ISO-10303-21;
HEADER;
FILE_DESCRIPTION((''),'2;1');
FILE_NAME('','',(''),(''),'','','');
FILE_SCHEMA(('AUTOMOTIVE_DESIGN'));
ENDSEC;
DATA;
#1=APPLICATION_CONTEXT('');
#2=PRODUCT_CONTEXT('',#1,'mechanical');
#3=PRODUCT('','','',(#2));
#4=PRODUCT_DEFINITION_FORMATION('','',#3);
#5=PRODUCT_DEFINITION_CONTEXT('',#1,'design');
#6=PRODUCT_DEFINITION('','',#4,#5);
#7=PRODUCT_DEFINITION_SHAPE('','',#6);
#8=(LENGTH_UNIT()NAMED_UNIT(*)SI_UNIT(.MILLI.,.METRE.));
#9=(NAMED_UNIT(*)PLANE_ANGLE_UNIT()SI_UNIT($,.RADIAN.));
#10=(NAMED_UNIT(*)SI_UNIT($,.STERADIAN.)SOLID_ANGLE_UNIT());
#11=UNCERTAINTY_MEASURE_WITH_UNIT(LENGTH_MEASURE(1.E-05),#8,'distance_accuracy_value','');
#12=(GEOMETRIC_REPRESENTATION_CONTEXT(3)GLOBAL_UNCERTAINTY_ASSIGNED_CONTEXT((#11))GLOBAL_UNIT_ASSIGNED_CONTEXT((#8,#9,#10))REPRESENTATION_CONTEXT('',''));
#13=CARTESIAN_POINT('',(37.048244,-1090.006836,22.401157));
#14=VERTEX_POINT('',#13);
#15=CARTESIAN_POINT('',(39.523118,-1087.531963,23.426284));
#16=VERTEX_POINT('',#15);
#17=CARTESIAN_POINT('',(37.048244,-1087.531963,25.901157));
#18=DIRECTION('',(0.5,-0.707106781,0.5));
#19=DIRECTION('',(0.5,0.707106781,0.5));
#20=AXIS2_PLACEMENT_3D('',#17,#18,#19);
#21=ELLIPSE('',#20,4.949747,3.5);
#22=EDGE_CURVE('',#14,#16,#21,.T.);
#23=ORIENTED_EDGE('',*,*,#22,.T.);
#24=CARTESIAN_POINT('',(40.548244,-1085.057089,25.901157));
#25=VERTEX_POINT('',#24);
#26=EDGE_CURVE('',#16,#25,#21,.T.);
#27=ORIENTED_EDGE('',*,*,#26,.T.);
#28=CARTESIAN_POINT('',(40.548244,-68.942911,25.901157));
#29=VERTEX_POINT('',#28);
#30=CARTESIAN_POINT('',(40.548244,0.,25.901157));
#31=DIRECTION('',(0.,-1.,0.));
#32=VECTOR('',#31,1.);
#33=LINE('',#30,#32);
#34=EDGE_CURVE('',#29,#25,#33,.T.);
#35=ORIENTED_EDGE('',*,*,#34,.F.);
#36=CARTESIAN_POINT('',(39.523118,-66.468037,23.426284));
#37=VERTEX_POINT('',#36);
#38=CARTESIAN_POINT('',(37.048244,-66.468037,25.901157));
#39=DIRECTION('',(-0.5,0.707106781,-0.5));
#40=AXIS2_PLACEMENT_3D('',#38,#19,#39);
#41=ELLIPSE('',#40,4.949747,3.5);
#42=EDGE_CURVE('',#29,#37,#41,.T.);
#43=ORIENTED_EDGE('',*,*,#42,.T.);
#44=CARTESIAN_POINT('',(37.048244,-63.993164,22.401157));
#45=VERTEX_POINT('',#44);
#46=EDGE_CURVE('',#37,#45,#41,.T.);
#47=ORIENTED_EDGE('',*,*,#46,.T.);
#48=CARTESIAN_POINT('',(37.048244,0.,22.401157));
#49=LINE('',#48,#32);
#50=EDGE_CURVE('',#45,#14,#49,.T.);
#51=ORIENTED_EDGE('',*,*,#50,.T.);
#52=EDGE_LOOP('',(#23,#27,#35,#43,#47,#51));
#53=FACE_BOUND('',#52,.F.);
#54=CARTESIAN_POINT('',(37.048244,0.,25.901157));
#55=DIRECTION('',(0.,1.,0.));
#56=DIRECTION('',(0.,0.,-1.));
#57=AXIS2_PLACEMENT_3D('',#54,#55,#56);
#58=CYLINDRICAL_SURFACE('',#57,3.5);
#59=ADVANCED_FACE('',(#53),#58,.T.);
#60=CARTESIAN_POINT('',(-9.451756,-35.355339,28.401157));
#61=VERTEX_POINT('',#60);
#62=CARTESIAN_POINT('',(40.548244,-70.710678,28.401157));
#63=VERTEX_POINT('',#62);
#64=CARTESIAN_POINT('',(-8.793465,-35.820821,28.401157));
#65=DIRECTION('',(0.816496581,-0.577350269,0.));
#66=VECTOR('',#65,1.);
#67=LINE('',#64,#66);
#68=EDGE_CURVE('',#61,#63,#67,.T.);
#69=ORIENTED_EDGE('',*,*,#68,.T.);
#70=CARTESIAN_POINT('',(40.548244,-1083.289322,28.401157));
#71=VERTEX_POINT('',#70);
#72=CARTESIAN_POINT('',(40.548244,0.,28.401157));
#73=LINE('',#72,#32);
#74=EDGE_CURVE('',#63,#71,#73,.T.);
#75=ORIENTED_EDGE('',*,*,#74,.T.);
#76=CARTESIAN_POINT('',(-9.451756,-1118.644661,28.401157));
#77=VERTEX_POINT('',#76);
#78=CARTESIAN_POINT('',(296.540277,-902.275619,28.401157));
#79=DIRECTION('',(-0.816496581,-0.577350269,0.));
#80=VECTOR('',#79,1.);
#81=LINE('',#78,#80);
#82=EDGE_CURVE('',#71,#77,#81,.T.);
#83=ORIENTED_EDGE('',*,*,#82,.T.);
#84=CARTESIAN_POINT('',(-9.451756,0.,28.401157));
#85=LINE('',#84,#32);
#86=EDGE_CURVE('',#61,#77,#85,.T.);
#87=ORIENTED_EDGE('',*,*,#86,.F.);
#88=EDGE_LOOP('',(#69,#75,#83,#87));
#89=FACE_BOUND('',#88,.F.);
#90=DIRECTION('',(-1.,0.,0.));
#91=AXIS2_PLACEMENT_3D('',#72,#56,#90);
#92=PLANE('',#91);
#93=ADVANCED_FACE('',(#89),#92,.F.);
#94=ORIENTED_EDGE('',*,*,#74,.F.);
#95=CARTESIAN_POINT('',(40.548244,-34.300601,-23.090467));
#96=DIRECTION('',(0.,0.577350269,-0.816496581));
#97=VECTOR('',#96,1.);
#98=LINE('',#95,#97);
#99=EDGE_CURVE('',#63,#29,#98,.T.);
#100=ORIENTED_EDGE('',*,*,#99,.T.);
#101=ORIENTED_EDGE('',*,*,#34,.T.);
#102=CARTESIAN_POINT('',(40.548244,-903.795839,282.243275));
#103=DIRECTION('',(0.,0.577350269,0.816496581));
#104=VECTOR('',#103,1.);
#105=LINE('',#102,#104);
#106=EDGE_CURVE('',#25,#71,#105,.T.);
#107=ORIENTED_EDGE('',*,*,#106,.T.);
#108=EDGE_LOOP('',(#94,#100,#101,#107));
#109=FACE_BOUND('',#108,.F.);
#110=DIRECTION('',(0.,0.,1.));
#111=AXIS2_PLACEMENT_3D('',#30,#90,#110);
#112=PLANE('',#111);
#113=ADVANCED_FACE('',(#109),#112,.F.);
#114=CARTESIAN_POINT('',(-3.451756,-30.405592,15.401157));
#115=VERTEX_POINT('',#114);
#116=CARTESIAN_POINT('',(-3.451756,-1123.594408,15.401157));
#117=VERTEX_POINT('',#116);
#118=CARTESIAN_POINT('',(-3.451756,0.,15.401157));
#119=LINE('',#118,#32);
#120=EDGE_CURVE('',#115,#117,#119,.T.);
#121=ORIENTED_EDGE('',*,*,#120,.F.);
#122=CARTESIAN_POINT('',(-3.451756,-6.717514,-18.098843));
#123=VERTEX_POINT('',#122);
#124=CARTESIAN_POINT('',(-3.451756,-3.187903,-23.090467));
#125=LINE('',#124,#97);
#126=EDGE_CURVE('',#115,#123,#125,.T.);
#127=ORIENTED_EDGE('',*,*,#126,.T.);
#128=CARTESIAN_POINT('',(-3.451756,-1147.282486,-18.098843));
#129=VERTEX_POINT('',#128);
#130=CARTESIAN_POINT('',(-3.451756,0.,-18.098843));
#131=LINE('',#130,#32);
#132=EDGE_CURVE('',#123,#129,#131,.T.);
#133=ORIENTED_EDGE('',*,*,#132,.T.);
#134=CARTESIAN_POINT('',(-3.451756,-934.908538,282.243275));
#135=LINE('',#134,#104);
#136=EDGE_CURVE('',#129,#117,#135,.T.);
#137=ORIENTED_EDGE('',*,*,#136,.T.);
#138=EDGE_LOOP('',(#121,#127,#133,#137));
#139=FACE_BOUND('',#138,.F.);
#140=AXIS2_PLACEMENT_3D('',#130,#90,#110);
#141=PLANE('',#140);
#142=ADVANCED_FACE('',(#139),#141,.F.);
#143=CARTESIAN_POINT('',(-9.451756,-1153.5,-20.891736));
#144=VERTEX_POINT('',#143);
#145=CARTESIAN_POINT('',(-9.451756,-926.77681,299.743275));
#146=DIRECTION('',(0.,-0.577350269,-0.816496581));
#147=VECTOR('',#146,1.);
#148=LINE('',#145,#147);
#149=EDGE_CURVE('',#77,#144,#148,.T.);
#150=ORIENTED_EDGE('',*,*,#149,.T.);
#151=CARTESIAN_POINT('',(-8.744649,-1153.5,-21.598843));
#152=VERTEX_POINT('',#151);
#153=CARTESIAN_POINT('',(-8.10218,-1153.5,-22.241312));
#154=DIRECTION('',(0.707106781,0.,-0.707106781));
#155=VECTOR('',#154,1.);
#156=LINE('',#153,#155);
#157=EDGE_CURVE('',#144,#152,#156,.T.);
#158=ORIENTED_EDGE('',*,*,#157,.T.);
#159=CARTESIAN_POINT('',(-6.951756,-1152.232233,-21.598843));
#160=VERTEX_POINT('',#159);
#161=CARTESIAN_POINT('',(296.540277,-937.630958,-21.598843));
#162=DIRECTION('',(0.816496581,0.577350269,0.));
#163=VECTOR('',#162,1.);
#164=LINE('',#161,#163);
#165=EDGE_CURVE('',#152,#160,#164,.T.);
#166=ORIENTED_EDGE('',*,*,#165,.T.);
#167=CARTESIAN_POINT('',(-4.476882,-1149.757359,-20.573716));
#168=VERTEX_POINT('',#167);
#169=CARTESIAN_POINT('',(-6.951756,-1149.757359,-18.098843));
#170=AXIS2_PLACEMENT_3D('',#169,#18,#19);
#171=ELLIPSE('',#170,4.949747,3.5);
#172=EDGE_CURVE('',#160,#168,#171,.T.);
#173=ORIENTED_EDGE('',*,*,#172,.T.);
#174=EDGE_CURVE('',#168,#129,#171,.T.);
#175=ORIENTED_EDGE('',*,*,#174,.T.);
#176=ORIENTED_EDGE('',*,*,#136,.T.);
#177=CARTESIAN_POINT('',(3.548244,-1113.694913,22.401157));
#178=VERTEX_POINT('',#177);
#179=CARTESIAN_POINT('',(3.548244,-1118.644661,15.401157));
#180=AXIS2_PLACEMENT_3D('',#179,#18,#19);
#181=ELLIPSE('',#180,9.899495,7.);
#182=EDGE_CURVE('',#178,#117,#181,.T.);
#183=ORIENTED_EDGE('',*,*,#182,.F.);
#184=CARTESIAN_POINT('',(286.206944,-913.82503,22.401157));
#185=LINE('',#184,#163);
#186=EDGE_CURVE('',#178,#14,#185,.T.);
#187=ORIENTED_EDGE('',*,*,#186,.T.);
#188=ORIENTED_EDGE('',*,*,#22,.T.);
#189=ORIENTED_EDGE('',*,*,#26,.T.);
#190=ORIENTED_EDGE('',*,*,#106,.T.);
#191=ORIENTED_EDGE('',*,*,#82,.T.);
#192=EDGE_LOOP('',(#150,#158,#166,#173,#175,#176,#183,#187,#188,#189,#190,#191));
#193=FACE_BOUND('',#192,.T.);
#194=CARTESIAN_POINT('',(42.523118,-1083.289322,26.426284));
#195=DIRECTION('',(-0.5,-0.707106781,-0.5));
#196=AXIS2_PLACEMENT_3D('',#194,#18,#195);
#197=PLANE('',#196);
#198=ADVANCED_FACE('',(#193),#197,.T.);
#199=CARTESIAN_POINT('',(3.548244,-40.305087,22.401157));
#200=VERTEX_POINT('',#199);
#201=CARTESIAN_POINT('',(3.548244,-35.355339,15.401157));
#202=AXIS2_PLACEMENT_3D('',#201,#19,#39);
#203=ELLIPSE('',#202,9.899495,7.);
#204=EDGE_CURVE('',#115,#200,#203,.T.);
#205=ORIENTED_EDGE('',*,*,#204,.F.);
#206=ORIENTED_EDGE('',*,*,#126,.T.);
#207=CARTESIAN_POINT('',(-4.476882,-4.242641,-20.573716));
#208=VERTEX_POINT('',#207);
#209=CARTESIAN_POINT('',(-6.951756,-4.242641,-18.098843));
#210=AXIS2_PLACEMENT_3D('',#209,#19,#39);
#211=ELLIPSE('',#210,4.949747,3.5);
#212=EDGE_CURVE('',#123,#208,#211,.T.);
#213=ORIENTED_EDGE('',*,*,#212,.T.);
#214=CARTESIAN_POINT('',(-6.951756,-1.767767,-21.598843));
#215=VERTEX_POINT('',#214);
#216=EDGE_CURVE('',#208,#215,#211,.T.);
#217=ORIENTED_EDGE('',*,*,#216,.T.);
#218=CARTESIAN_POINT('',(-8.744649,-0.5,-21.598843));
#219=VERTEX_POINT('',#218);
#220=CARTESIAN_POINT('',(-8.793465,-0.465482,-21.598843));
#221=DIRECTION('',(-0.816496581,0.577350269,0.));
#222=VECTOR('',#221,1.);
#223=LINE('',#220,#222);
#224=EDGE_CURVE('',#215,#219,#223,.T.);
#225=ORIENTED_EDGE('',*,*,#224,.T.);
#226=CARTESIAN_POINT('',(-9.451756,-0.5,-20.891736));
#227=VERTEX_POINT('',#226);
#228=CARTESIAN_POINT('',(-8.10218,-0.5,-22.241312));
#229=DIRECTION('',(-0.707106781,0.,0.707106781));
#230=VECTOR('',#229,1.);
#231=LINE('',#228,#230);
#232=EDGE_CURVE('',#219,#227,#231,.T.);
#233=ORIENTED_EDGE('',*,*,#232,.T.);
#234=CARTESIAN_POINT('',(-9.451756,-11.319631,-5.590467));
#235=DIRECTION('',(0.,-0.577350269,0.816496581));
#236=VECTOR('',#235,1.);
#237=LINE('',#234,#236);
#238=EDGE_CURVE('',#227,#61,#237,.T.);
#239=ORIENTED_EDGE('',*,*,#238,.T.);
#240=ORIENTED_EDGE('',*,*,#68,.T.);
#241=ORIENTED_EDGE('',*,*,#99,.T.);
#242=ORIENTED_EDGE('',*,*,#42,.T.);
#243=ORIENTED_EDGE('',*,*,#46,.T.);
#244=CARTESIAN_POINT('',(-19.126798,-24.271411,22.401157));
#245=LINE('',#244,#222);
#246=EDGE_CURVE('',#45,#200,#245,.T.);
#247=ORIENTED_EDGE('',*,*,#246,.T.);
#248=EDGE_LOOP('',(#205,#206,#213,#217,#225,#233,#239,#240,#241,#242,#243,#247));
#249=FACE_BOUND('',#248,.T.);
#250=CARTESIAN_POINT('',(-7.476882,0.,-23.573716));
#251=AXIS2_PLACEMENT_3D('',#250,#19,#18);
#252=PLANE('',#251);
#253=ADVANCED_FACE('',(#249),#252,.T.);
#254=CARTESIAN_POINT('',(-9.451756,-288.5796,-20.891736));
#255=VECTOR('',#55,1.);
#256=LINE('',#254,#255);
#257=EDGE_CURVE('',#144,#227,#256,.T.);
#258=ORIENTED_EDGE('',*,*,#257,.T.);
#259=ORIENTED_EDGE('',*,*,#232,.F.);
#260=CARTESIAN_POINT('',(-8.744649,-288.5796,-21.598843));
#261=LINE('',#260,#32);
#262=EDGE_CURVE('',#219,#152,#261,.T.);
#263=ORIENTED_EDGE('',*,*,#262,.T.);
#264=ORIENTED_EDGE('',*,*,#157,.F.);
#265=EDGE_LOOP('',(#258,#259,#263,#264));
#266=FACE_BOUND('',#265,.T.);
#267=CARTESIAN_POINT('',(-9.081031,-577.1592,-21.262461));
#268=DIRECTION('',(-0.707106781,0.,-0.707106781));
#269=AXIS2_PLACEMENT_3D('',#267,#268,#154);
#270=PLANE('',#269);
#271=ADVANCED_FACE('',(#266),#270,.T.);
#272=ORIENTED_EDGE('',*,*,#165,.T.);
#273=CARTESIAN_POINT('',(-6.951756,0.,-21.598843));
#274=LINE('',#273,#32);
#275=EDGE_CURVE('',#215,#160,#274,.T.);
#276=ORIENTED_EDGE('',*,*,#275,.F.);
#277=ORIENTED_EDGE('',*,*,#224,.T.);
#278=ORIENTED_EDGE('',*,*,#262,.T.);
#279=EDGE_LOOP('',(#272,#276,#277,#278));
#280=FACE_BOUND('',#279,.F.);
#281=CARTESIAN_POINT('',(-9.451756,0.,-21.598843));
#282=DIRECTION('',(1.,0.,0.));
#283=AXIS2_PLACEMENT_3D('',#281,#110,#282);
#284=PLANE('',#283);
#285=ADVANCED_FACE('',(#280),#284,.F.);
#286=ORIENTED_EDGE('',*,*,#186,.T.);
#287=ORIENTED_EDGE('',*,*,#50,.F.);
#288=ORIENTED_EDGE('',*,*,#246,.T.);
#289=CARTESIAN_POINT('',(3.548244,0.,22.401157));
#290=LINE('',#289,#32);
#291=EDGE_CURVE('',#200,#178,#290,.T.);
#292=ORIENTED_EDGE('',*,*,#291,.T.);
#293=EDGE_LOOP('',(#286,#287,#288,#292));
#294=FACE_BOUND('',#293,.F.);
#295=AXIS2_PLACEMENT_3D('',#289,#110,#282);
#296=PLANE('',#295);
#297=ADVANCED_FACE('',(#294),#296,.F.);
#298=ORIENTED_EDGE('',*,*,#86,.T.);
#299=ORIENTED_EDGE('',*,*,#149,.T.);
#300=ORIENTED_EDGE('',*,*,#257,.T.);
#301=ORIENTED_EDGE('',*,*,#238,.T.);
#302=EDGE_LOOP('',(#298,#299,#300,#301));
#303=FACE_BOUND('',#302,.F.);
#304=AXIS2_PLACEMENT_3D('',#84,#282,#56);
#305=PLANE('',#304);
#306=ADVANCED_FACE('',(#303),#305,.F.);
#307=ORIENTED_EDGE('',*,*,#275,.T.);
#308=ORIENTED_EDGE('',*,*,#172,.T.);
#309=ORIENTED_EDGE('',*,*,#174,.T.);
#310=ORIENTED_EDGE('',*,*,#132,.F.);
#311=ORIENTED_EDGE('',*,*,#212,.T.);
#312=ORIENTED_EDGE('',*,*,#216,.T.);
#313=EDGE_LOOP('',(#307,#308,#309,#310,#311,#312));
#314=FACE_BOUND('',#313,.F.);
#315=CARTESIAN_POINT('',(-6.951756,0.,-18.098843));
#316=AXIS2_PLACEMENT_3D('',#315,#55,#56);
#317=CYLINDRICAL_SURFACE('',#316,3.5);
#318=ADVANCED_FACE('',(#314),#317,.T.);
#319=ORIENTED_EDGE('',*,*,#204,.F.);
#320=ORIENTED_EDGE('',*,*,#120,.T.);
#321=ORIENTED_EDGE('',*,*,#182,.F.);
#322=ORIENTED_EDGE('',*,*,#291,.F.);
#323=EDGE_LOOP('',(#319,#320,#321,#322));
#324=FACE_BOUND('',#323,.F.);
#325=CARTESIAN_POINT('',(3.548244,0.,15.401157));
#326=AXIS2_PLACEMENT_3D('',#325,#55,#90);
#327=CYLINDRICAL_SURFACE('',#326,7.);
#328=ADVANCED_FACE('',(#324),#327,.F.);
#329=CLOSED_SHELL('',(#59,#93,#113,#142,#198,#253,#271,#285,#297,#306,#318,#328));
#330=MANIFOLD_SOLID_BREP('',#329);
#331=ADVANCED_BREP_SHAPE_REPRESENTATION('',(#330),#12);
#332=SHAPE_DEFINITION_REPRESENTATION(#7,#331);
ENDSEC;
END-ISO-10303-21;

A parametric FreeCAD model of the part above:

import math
import FreeCAD as App
import Part
import Sketcher

V = App.Vector


def add_polygon(sketch, points):
    """Adds a closed chain of lines whose ends are joined by coincident constraints."""
    first, n = sketch.GeometryCount, len(points)
    for a, b in zip(points, points[1:] + points[:1]):
        sketch.addGeometry(Part.LineSegment(App.Vector(*a, 0), App.Vector(*b, 0)), False)
    for i in range(n):
        sketch.addConstraint(Sketcher.Constraint("Coincident", first + i, 2, first + (i + 1) % n, 1))

doc = App.newDocument("Part")
body = doc.addObject("PartDesign::Body", "Body")

# Sketch on XZ plane
sketch1 = doc.addObject("Sketcher::SketchObject", "Sketch")
body.addObject(sketch1)
sketch1.AttachmentSupport = (doc.XZ_Plane, [""])
sketch1.MapMode = "FlatFace"
sketch1.addGeometry(Part.LineSegment(V(-9.451756, 28.401157, 0), V(-9.451756, -21.598843, 0)), False)
sketch1.addGeometry(Part.LineSegment(V(-9.451756, -21.598843, 0), V(-6.951756, -21.598843, 0)), False)
sketch1.addGeometry(Part.ArcOfCircle(Part.Circle(V(-6.951756, -18.098843, 0), V(0, 0, 1), 3.5), math.radians(-90), math.radians(0)), False)
sketch1.addGeometry(Part.LineSegment(V(-3.451756, -18.098843, 0), V(-3.451756, 15.401157, 0)), False)
sketch1.addGeometry(Part.ArcOfCircle(Part.Circle(V(3.548244, 15.401157, 0), V(0, 0, 1), 7), math.radians(90), math.radians(180)), False)
sketch1.addGeometry(Part.LineSegment(V(3.548244, 22.401157, 0), V(37.048244, 22.401157, 0)), False)
sketch1.addGeometry(Part.ArcOfCircle(Part.Circle(V(37.048244, 25.901157, 0), V(0, 0, 1), 3.5), math.radians(-90), math.radians(0)), False)
sketch1.addGeometry(Part.LineSegment(V(40.548244, 25.901157, 0), V(40.548244, 28.401157, 0)), False)
sketch1.addGeometry(Part.LineSegment(V(40.548244, 28.401157, 0), V(-9.451756, 28.401157, 0)), False)
sketch1.addConstraint(Sketcher.Constraint("Coincident", 0, 2, 1, 1))
sketch1.addConstraint(Sketcher.Constraint("Tangent", 1, 2, 2, 1))
sketch1.addConstraint(Sketcher.Constraint("Tangent", 2, 2, 3, 1))
sketch1.addConstraint(Sketcher.Constraint("Tangent", 3, 2, 4, 2))
sketch1.addConstraint(Sketcher.Constraint("Tangent", 4, 1, 5, 1))
sketch1.addConstraint(Sketcher.Constraint("Tangent", 5, 2, 6, 1))
sketch1.addConstraint(Sketcher.Constraint("Tangent", 6, 2, 7, 1))
sketch1.addConstraint(Sketcher.Constraint("Coincident", 7, 2, 8, 1))
sketch1.addConstraint(Sketcher.Constraint("Coincident", 8, 2, 0, 1))
sketch1.addConstraint(Sketcher.Constraint("Vertical", 0))
sketch1.addConstraint(Sketcher.Constraint("Horizontal", 1))
sketch1.addConstraint(Sketcher.Constraint("Vertical", 3))
sketch1.addConstraint(Sketcher.Constraint("Horizontal", 5))
sketch1.addConstraint(Sketcher.Constraint("Vertical", 7))
sketch1.addConstraint(Sketcher.Constraint("Horizontal", 8))
sketch1.addConstraint(Sketcher.Constraint("Equal", 2, 6))
sketch1.addConstraint(Sketcher.Constraint("Equal", 8, 0))
sketch1.addConstraint(Sketcher.Constraint("Equal", 5, 3))
sketch1.addConstraint(Sketcher.Constraint("Radius", 4, 7.0))
sketch1.addConstraint(Sketcher.Constraint("Radius", 2, 3.5))
sketch1.addConstraint(Sketcher.Constraint("DistanceX", 8, 2, 8, 1, 50.0))
sketch1.addConstraint(Sketcher.Constraint("DistanceX", 1, 1, 1, 2, 2.5))
sketch1.addConstraint(Sketcher.Constraint("DistanceX", 2, 3, -1, 1, 6.951756))
sketch1.addConstraint(Sketcher.Constraint("DistanceY", 2, 3, -1, 1, 18.098843))
pad1 = doc.addObject("PartDesign::Pad", "Pad")
body.addObject(pad1)
pad1.Profile = sketch1
pad1.Length = 1154

# Sketch on an angled plane
sketch2 = doc.addObject("Sketcher::SketchObject", "Sketch001")
body.addObject(sketch2)
sketch2.Placement = App.Placement(V(8.048417, 0, -8.048417), App.Rotation(V(0, -1, 0), V(0.707106781, 0, 0.707106781), V(-0.707106781, 0, 0.707106781), "ZXY"))
add_polygon(sketch2, [(0, 48.754589), (0, -21.956089), (70.710678, 48.754589)])  # lines 0-2
sketch2.addConstraint(Sketcher.Constraint("Vertical", 0))
sketch2.addConstraint(Sketcher.Constraint("Horizontal", 2))
sketch2.addConstraint(Sketcher.Constraint("PointOnObject", 0, 2, -2))
sketch2.addConstraint(Sketcher.Constraint("Equal", 2, 0))
sketch2.addConstraint(Sketcher.Constraint("Distance", 1, 100.0))
sketch2.addConstraint(Sketcher.Constraint("DistanceY", 0, 2, -1, 1, 21.956089))
pocket1 = doc.addObject("PartDesign::Pocket", "Pocket")
body.addObject(pocket1)
pocket1.Profile = sketch2
pocket1.Length = 45
pocket1.Reversed = True

# Sketch on an angled plane
sketch3 = doc.addObject("Sketcher::SketchObject", "Sketch002")
body.addObject(sketch3)
sketch3.Placement = App.Placement(V(8.048417, 0, -8.048417), App.Rotation(V(0, -1, 0), V(0.707106781, 0, 0.707106781), V(-0.707106781, 0, 0.707106781), "ZXY"))
add_polygon(sketch3, [(1083.289322, 48.754589), (1154, -21.956089), (1154, 48.754589)])  # lines 0-2
sketch3.addConstraint(Sketcher.Constraint("Vertical", 1))
sketch3.addConstraint(Sketcher.Constraint("Horizontal", 2))
sketch3.addConstraint(Sketcher.Constraint("Equal", 2, 1))
sketch3.addConstraint(Sketcher.Constraint("Distance", 0, 100.0))
sketch3.addConstraint(Sketcher.Constraint("DistanceX", -1, 1, 0, 2, 1154.0))
sketch3.addConstraint(Sketcher.Constraint("DistanceY", 0, 2, -1, 1, 21.956089))
pocket2 = doc.addObject("PartDesign::Pocket", "Pocket001")
body.addObject(pocket2)
pocket2.Profile = sketch3
pocket2.Length = 45
pocket2.Reversed = True

# Sketch on an angled plane
sketch4 = doc.addObject("Sketcher::SketchObject", "Sketch003")
body.addObject(sketch4)
sketch4.Placement = App.Placement(V(-15.525299, 0, -15.525299), App.Rotation(V(0.707106781, 0, -0.707106781), V(0, -0.999999999, 0), V(-0.707106781, 0, -0.707106781), "ZXY"))
add_polygon(sketch4, [(6.204057, 1156.31759), (6.204057, -1.999192), (11.023086, -1.999192), (11.023086, 1156.31759)])  # lines 0-3
sketch4.addConstraint(Sketcher.Constraint("Vertical", 0))
sketch4.addConstraint(Sketcher.Constraint("Horizontal", 1))
sketch4.addConstraint(Sketcher.Constraint("Vertical", 2))
sketch4.addConstraint(Sketcher.Constraint("Horizontal", 3))
sketch4.addConstraint(Sketcher.Constraint("DistanceX", 1, 1, 1, 2, 4.819029))
sketch4.addConstraint(Sketcher.Constraint("DistanceY", 0, 2, 0, 1, 1158.316783))
sketch4.addConstraint(Sketcher.Constraint("DistanceY", -1, 1, 2, 2, 1156.31759))
sketch4.addConstraint(Sketcher.Constraint("DistanceX", -1, 1, 0, 2, 6.204057))
pocket3 = doc.addObject("PartDesign::Pocket", "Pocket002")
body.addObject(pocket3)
pocket3.Profile = sketch4
pocket3.Length = 0.5

doc.recompute()
